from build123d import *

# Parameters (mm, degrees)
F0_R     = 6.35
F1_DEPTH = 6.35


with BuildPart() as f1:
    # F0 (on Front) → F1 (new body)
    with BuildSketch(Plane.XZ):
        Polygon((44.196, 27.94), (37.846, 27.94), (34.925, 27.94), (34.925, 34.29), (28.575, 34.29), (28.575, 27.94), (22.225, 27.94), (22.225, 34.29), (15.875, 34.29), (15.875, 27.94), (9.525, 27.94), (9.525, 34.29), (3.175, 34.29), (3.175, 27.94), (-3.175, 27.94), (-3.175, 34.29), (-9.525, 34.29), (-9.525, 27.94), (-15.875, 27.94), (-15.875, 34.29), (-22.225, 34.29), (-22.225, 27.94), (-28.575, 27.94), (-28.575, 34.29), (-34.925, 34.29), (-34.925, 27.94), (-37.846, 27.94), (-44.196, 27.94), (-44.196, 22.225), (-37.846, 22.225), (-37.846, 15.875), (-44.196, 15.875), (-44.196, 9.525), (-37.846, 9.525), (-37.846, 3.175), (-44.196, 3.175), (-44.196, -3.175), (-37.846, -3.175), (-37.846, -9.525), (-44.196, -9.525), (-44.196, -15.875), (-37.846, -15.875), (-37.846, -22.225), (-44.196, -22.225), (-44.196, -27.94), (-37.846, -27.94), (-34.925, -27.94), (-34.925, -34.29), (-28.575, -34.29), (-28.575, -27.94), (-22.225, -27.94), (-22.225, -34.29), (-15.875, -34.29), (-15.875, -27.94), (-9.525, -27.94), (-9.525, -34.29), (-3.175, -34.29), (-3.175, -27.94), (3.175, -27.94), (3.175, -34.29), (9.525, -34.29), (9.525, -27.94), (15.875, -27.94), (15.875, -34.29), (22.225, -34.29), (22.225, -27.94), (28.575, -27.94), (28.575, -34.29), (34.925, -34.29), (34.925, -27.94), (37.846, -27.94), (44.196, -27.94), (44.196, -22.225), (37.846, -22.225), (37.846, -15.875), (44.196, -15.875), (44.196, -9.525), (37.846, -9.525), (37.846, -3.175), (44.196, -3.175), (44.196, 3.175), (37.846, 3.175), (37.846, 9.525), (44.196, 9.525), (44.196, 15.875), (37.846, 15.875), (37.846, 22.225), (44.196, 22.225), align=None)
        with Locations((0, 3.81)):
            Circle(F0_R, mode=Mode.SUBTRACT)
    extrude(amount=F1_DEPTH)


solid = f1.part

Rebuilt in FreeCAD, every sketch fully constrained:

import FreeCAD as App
import Part
import Sketcher
Q = App.Units.Quantity

doc = App.newDocument("Part")
body = doc.addObject("PartDesign::Body", "Body")

# Sketch on XZ plane
sketch1 = body.newObject("Sketcher::SketchObject", "Sketch")
sketch1.AttachmentSupport = (doc.getObject("XZ_Plane"), [""])
sketch1.MapMode = "FlatFace"
sketch1.addGeometry([
    Part.LineSegment(App.Vector(44, 28, 0), App.Vector(35, 28, 0)),  # 0
    Part.LineSegment(App.Vector(35, 28, 0), App.Vector(35, 34, 0)),  # 1
    Part.LineSegment(App.Vector(35, 34, 0), App.Vector(29, 34, 0)),  # 2
    Part.LineSegment(App.Vector(29, 34, 0), App.Vector(29, 28, 0)),  # 3
    Part.LineSegment(App.Vector(29, 28, 0), App.Vector(22, 28, 0)),  # 4
    Part.LineSegment(App.Vector(22, 28, 0), App.Vector(22, 34, 0)),  # 5
    Part.LineSegment(App.Vector(22, 34, 0), App.Vector(16, 34, 0)),  # 6
    Part.LineSegment(App.Vector(16, 34, 0), App.Vector(16, 28, 0)),  # 7
    Part.LineSegment(App.Vector(16, 28, 0), App.Vector(10, 28, 0)),  # 8
    Part.LineSegment(App.Vector(10, 28, 0), App.Vector(10, 34, 0)),  # 9
    Part.LineSegment(App.Vector(10, 34, 0), App.Vector(3, 34, 0)),  # 10
    Part.LineSegment(App.Vector(3, 34, 0), App.Vector(3, 28, 0)),  # 11
    Part.LineSegment(App.Vector(3, 28, 0), App.Vector(-3, 28, 0)),  # 12
    Part.LineSegment(App.Vector(-3, 28, 0), App.Vector(-3, 34, 0)),  # 13
    Part.LineSegment(App.Vector(-3, 34, 0), App.Vector(-10, 34, 0)),  # 14
    Part.LineSegment(App.Vector(-10, 34, 0), App.Vector(-10, 28, 0)),  # 15
    Part.LineSegment(App.Vector(-10, 28, 0), App.Vector(-16, 28, 0)),  # 16
    Part.LineSegment(App.Vector(-16, 28, 0), App.Vector(-16, 34, 0)),  # 17
    Part.LineSegment(App.Vector(-16, 34, 0), App.Vector(-22, 34, 0)),  # 18
    Part.LineSegment(App.Vector(-22, 34, 0), App.Vector(-22, 28, 0)),  # 19
    Part.LineSegment(App.Vector(-22, 28, 0), App.Vector(-29, 28, 0)),  # 20
    Part.LineSegment(App.Vector(-29, 28, 0), App.Vector(-29, 34, 0)),  # 21
    Part.LineSegment(App.Vector(-29, 34, 0), App.Vector(-35, 34, 0)),  # 22
    Part.LineSegment(App.Vector(-35, 34, 0), App.Vector(-35, 28, 0)),  # 23
    Part.LineSegment(App.Vector(-35, 28, 0), App.Vector(-44, 28, 0)),  # 24
    Part.LineSegment(App.Vector(-44, 28, 0), App.Vector(-44, 22, 0)),  # 25
    Part.LineSegment(App.Vector(-44, 22, 0), App.Vector(-38, 22, 0)),  # 26
    Part.LineSegment(App.Vector(-38, 22, 0), App.Vector(-38, 16, 0)),  # 27
    Part.LineSegment(App.Vector(-38, 16, 0), App.Vector(-44, 16, 0)),  # 28
    Part.LineSegment(App.Vector(-44, 16, 0), App.Vector(-44, 10, 0)),  # 29
    Part.LineSegment(App.Vector(-44, 10, 0), App.Vector(-38, 10, 0)),  # 30
    Part.LineSegment(App.Vector(-38, 10, 0), App.Vector(-38, 3, 0)),  # 31
    Part.LineSegment(App.Vector(-38, 3, 0), App.Vector(-44, 3, 0)),  # 32
    Part.LineSegment(App.Vector(-44, 3, 0), App.Vector(-44, -3, 0)),  # 33
    Part.LineSegment(App.Vector(-44, -3, 0), App.Vector(-38, -3, 0)),  # 34
    Part.LineSegment(App.Vector(-38, -3, 0), App.Vector(-38, -10, 0)),  # 35
    Part.LineSegment(App.Vector(-38, -10, 0), App.Vector(-44, -10, 0)),  # 36
    Part.LineSegment(App.Vector(-44, -10, 0), App.Vector(-44, -16, 0)),  # 37
    Part.LineSegment(App.Vector(-44, -16, 0), App.Vector(-38, -16, 0)),  # 38
    Part.LineSegment(App.Vector(-38, -16, 0), App.Vector(-38, -22, 0)),  # 39
    Part.LineSegment(App.Vector(-38, -22, 0), App.Vector(-44, -22, 0)),  # 40
    Part.LineSegment(App.Vector(-44, -22, 0), App.Vector(-44, -28, 0)),  # 41
    Part.LineSegment(App.Vector(-44, -28, 0), App.Vector(-35, -28, 0)),  # 42
    Part.LineSegment(App.Vector(-35, -28, 0), App.Vector(-35, -34, 0)),  # 43
    Part.LineSegment(App.Vector(-35, -34, 0), App.Vector(-29, -34, 0)),  # 44
    Part.LineSegment(App.Vector(-29, -34, 0), App.Vector(-29, -28, 0)),  # 45
    Part.LineSegment(App.Vector(-29, -28, 0), App.Vector(-22, -28, 0)),  # 46
    Part.LineSegment(App.Vector(-22, -28, 0), App.Vector(-22, -34, 0)),  # 47
    Part.LineSegment(App.Vector(-22, -34, 0), App.Vector(-16, -34, 0)),  # 48
    Part.LineSegment(App.Vector(-16, -34, 0), App.Vector(-16, -28, 0)),  # 49
    Part.LineSegment(App.Vector(-16, -28, 0), App.Vector(-10, -28, 0)),  # 50
    Part.LineSegment(App.Vector(-10, -28, 0), App.Vector(-10, -34, 0)),  # 51
    Part.LineSegment(App.Vector(-10, -34, 0), App.Vector(-3, -34, 0)),  # 52
    Part.LineSegment(App.Vector(-3, -34, 0), App.Vector(-3, -28, 0)),  # 53
    Part.LineSegment(App.Vector(-3, -28, 0), App.Vector(3, -28, 0)),  # 54
    Part.LineSegment(App.Vector(3, -28, 0), App.Vector(3, -34, 0)),  # 55
    Part.LineSegment(App.Vector(3, -34, 0), App.Vector(10, -34, 0)),  # 56
    Part.LineSegment(App.Vector(10, -34, 0), App.Vector(10, -28, 0)),  # 57
    Part.LineSegment(App.Vector(10, -28, 0), App.Vector(16, -28, 0)),  # 58
    Part.LineSegment(App.Vector(16, -28, 0), App.Vector(16, -34, 0)),  # 59
    Part.LineSegment(App.Vector(16, -34, 0), App.Vector(22, -34, 0)),  # 60
    Part.LineSegment(App.Vector(22, -34, 0), App.Vector(22, -28, 0)),  # 61
    Part.LineSegment(App.Vector(22, -28, 0), App.Vector(29, -28, 0)),  # 62
    Part.LineSegment(App.Vector(29, -28, 0), App.Vector(29, -34, 0)),  # 63
    Part.LineSegment(App.Vector(29, -34, 0), App.Vector(35, -34, 0)),  # 64
    Part.LineSegment(App.Vector(35, -34, 0), App.Vector(35, -28, 0)),  # 65
    Part.LineSegment(App.Vector(35, -28, 0), App.Vector(44, -28, 0)),  # 66
    Part.LineSegment(App.Vector(44, -28, 0), App.Vector(44, -22, 0)),  # 67
    Part.LineSegment(App.Vector(44, -22, 0), App.Vector(38, -22, 0)),  # 68
    Part.LineSegment(App.Vector(38, -22, 0), App.Vector(38, -16, 0)),  # 69
    Part.LineSegment(App.Vector(38, -16, 0), App.Vector(44, -16, 0)),  # 70
    Part.LineSegment(App.Vector(44, -16, 0), App.Vector(44, -10, 0)),  # 71
    Part.LineSegment(App.Vector(44, -10, 0), App.Vector(38, -10, 0)),  # 72
    Part.LineSegment(App.Vector(38, -10, 0), App.Vector(38, -3, 0)),  # 73
    Part.LineSegment(App.Vector(38, -3, 0), App.Vector(44, -3, 0)),  # 74
    Part.LineSegment(App.Vector(44, -3, 0), App.Vector(44, 3, 0)),  # 75
    Part.LineSegment(App.Vector(44, 3, 0), App.Vector(38, 3, 0)),  # 76
    Part.LineSegment(App.Vector(38, 3, 0), App.Vector(38, 10, 0)),  # 77
    Part.LineSegment(App.Vector(38, 10, 0), App.Vector(44, 10, 0)),  # 78
    Part.LineSegment(App.Vector(44, 10, 0), App.Vector(44, 16, 0)),  # 79
    Part.LineSegment(App.Vector(44, 16, 0), App.Vector(38, 16, 0)),  # 80
    Part.LineSegment(App.Vector(38, 16, 0), App.Vector(38, 22, 0)),  # 81
    Part.LineSegment(App.Vector(38, 22, 0), App.Vector(44, 22, 0)),  # 82
    Part.LineSegment(App.Vector(44, 22, 0), App.Vector(44, 28, 0)),  # 83
    Part.Circle(App.Vector(0, 4, 0), App.Vector(0, 0, 1), 6),  # 84
], False)
sketch1.addConstraint([
    Sketcher.Constraint("Coincident", 0, 2, 1, 1),
    Sketcher.Constraint("Coincident", 1, 2, 2, 1),
    Sketcher.Constraint("Coincident", 2, 2, 3, 1),
    Sketcher.Constraint("Coincident", 3, 2, 4, 1),
    Sketcher.Constraint("Coincident", 4, 2, 5, 1),
    Sketcher.Constraint("Coincident", 5, 2, 6, 1),
    Sketcher.Constraint("Coincident", 6, 2, 7, 1),
    Sketcher.Constraint("Coincident", 7, 2, 8, 1),
    Sketcher.Constraint("Coincident", 8, 2, 9, 1),
    Sketcher.Constraint("Coincident", 9, 2, 10, 1),
    Sketcher.Constraint("Coincident", 10, 2, 11, 1),
    Sketcher.Constraint("Coincident", 11, 2, 12, 1),
    Sketcher.Constraint("Coincident", 12, 2, 13, 1),
    Sketcher.Constraint("Coincident", 13, 2, 14, 1),
    Sketcher.Constraint("Coincident", 14, 2, 15, 1),
    Sketcher.Constraint("Coincident", 15, 2, 16, 1),
    Sketcher.Constraint("Coincident", 16, 2, 17, 1),
    Sketcher.Constraint("Coincident", 17, 2, 18, 1),
    Sketcher.Constraint("Coincident", 18, 2, 19, 1),
    Sketcher.Constraint("Coincident", 19, 2, 20, 1),
    Sketcher.Constraint("Coincident", 20, 2, 21, 1),
    Sketcher.Constraint("Coincident", 21, 2, 22, 1),
    Sketcher.Constraint("Coincident", 22, 2, 23, 1),
    Sketcher.Constraint("Coincident", 23, 2, 24, 1),
    Sketcher.Constraint("Coincident", 24, 2, 25, 1),
    Sketcher.Constraint("Coincident", 25, 2, 26, 1),
    Sketcher.Constraint("Coincident", 26, 2, 27, 1),
    Sketcher.Constraint("Coincident", 27, 2, 28, 1),
    Sketcher.Constraint("Coincident", 28, 2, 29, 1),
    Sketcher.Constraint("Coincident", 29, 2, 30, 1),
    Sketcher.Constraint("Coincident", 30, 2, 31, 1),
    Sketcher.Constraint("Coincident", 31, 2, 32, 1),
    Sketcher.Constraint("Coincident", 32, 2, 33, 1),
    Sketcher.Constraint("Coincident", 33, 2, 34, 1),
    Sketcher.Constraint("Coincident", 34, 2, 35, 1),
    Sketcher.Constraint("Coincident", 35, 2, 36, 1),
    Sketcher.Constraint("Coincident", 36, 2, 37, 1),
    Sketcher.Constraint("Coincident", 37, 2, 38, 1),
    Sketcher.Constraint("Coincident", 38, 2, 39, 1),
    Sketcher.Constraint("Coincident", 39, 2, 40, 1),
    Sketcher.Constraint("Coincident", 40, 2, 41, 1),
    Sketcher.Constraint("Coincident", 41, 2, 42, 1),
    Sketcher.Constraint("Coincident", 42, 2, 43, 1),
    Sketcher.Constraint("Coincident", 43, 2, 44, 1),
    Sketcher.Constraint("Coincident", 44, 2, 45, 1),
    Sketcher.Constraint("Coincident", 45, 2, 46, 1),
    Sketcher.Constraint("Coincident", 46, 2, 47, 1),
    Sketcher.Constraint("Coincident", 47, 2, 48, 1),
    Sketcher.Constraint("Coincident", 48, 2, 49, 1),
    Sketcher.Constraint("Coincident", 49, 2, 50, 1),
    Sketcher.Constraint("Coincident", 50, 2, 51, 1),
    Sketcher.Constraint("Coincident", 51, 2, 52, 1),
    Sketcher.Constraint("Coincident", 52, 2, 53, 1),
    Sketcher.Constraint("Coincident", 53, 2, 54, 1),
    Sketcher.Constraint("Coincident", 54, 2, 55, 1),
    Sketcher.Constraint("Coincident", 55, 2, 56, 1),
    Sketcher.Constraint("Coincident", 56, 2, 57, 1),
    Sketcher.Constraint("Coincident", 57, 2, 58, 1),
    Sketcher.Constraint("Coincident", 58, 2, 59, 1),
    Sketcher.Constraint("Coincident", 59, 2, 60, 1),
    Sketcher.Constraint("Coincident", 60, 2, 61, 1),
    Sketcher.Constraint("Coincident", 61, 2, 62, 1),
    Sketcher.Constraint("Coincident", 62, 2, 63, 1),
    Sketcher.Constraint("Coincident", 63, 2, 64, 1),
    Sketcher.Constraint("Coincident", 64, 2, 65, 1),
    Sketcher.Constraint("Coincident", 65, 2, 66, 1),
    Sketcher.Constraint("Coincident", 66, 2, 67, 1),
    Sketcher.Constraint("Coincident", 67, 2, 68, 1),
    Sketcher.Constraint("Coincident", 68, 2, 69, 1),
    Sketcher.Constraint("Coincident", 69, 2, 70, 1),
    Sketcher.Constraint("Coincident", 70, 2, 71, 1),
    Sketcher.Constraint("Coincident", 71, 2, 72, 1),
    Sketcher.Constraint("Coincident", 72, 2, 73, 1),
    Sketcher.Constraint("Coincident", 73, 2, 74, 1),
    Sketcher.Constraint("Coincident", 74, 2, 75, 1),
    Sketcher.Constraint("Coincident", 75, 2, 76, 1),
    Sketcher.Constraint("Coincident", 76, 2, 77, 1),
    Sketcher.Constraint("Coincident", 77, 2, 78, 1),
    Sketcher.Constraint("Coincident", 78, 2, 79, 1),
    Sketcher.Constraint("Coincident", 79, 2, 80, 1),
    Sketcher.Constraint("Coincident", 80, 2, 81, 1),
    Sketcher.Constraint("Coincident", 81, 2, 82, 1),
    Sketcher.Constraint("Coincident", 82, 2, 83, 1),
    Sketcher.Constraint("Coincident", 83, 2, 0, 1),
    Sketcher.Constraint("Horizontal", 0),
    Sketcher.Constraint("Vertical", 1),
    Sketcher.Constraint("Horizontal", 2),
    Sketcher.Constraint("Vertical", 3),
    Sketcher.Constraint("Horizontal", 4),
    Sketcher.Constraint("Vertical", 5),
    Sketcher.Constraint("Horizontal", 6),
    Sketcher.Constraint("Vertical", 7),
    Sketcher.Constraint("Horizontal", 8),
    Sketcher.Constraint("Vertical", 9),
    Sketcher.Constraint("Horizontal", 10),
    Sketcher.Constraint("Vertical", 11),
    Sketcher.Constraint("Horizontal", 12),
    Sketcher.Constraint("Vertical", 13),
    Sketcher.Constraint("Horizontal", 14),
    Sketcher.Constraint("Vertical", 15),
    Sketcher.Constraint("Horizontal", 16),
    Sketcher.Constraint("Vertical", 17),
    Sketcher.Constraint("Horizontal", 18),
    Sketcher.Constraint("Vertical", 19),
    Sketcher.Constraint("Horizontal", 20),
    Sketcher.Constraint("Vertical", 21),
    Sketcher.Constraint("Horizontal", 22),
    Sketcher.Constraint("Vertical", 23),
    Sketcher.Constraint("Horizontal", 24),
    Sketcher.Constraint("Vertical", 25),
    Sketcher.Constraint("Horizontal", 26),
    Sketcher.Constraint("Vertical", 27),
    Sketcher.Constraint("Horizontal", 28),
    Sketcher.Constraint("Vertical", 29),
    Sketcher.Constraint("Horizontal", 30),
    Sketcher.Constraint("Vertical", 31),
    Sketcher.Constraint("Horizontal", 32),
    Sketcher.Constraint("Vertical", 33),
    Sketcher.Constraint("Horizontal", 34),
    Sketcher.Constraint("Vertical", 35),
    Sketcher.Constraint("Horizontal", 36),
    Sketcher.Constraint("Vertical", 37),
    Sketcher.Constraint("Horizontal", 38),
    Sketcher.Constraint("Vertical", 39),
    Sketcher.Constraint("Horizontal", 40),
    Sketcher.Constraint("Vertical", 41),
    Sketcher.Constraint("Horizontal", 42),
    Sketcher.Constraint("Vertical", 43),
    Sketcher.Constraint("Horizontal", 44),
    Sketcher.Constraint("Vertical", 45),
    Sketcher.Constraint("Horizontal", 46),
    Sketcher.Constraint("Vertical", 47),
    Sketcher.Constraint("Horizontal", 48),
    Sketcher.Constraint("Vertical", 49),
    Sketcher.Constraint("Horizontal", 50),
    Sketcher.Constraint("Vertical", 51),
    Sketcher.Constraint("Horizontal", 52),
    Sketcher.Constraint("Vertical", 53),
    Sketcher.Constraint("Horizontal", 54),
    Sketcher.Constraint("Vertical", 55),
    Sketcher.Constraint("Horizontal", 56),
    Sketcher.Constraint("Vertical", 57),
    Sketcher.Constraint("Horizontal", 58),
    Sketcher.Constraint("Vertical", 59),
    Sketcher.Constraint("Horizontal", 60),
    Sketcher.Constraint("Vertical", 61),
    Sketcher.Constraint("Horizontal", 62),
    Sketcher.Constraint("Vertical", 63),
    Sketcher.Constraint("Horizontal", 64),
    Sketcher.Constraint("Vertical", 65),
    Sketcher.Constraint("Horizontal", 66),
    Sketcher.Constraint("Vertical", 67),
    Sketcher.Constraint("Horizontal", 68),
    Sketcher.Constraint("Vertical", 69),
    Sketcher.Constraint("Horizontal", 70),
    Sketcher.Constraint("Vertical", 71),
    Sketcher.Constraint("Horizontal", 72),
    Sketcher.Constraint("Vertical", 73),
    Sketcher.Constraint("Horizontal", 74),
    Sketcher.Constraint("Vertical", 75),
    Sketcher.Constraint("Horizontal", 76),
    Sketcher.Constraint("Vertical", 77),
    Sketcher.Constraint("Horizontal", 78),
    Sketcher.Constraint("Vertical", 79),
    Sketcher.Constraint("Horizontal", 80),
    Sketcher.Constraint("Vertical", 81),
    Sketcher.Constraint("Horizontal", 82),
    Sketcher.Constraint("Vertical", 83),
    Sketcher.Constraint("Symmetric", 0, 2, 42, 2, -1, 1),
    Sketcher.Constraint("Symmetric", 2, 2, 44, 2, -1, 1),
    Sketcher.Constraint("Symmetric", 4, 2, 46, 2, -1, 1),
    Sketcher.Constraint("Symmetric", 6, 2, 48, 2, -1, 1),
    Sketcher.Constraint("Symmetric", 8, 2, 50, 2, -1, 1),
    Sketcher.Constraint("Symmetric", 10, 2, 52, 2, -1, 1),
    Sketcher.Constraint("Symmetric", 12, 2, 54, 2, -1, 1),
    Sketcher.Constraint("Symmetric", 14, 2, 56, 2, -1, 1),
    Sketcher.Constraint("Symmetric", 16, 2, 58, 2, -1, 1),
    Sketcher.Constraint("Symmetric", 18, 2, 60, 2, -1, 1),
    Sketcher.Constraint("Symmetric", 20, 2, 62, 2, -1, 1),
    Sketcher.Constraint("Symmetric", 22, 2, 64, 2, -1, 1),
    Sketcher.Constraint("Symmetric", 24, 2, 66, 2, -1, 1),
    Sketcher.Constraint("Symmetric", 26, 2, 68, 2, -1, 1),
    Sketcher.Constraint("Symmetric", 28, 2, 70, 2, -1, 1),
    Sketcher.Constraint("Symmetric", 30, 2, 72, 2, -1, 1),
    Sketcher.Constraint("Symmetric", 32, 2, 74, 2, -1, 1),
    Sketcher.Constraint("Symmetric", 34, 2, 76, 2, -1, 1),
    Sketcher.Constraint("Symmetric", 36, 2, 78, 2, -1, 1),
    Sketcher.Constraint("Symmetric", 38, 2, 80, 2, -1, 1),
    Sketcher.Constraint("Symmetric", 40, 2, 82, 2, -1, 1),
    Sketcher.Constraint("Symmetric", 10, 2, 13, 2, -2),
    Sketcher.Constraint("Symmetric", 8, 2, 15, 2, -2),
    Sketcher.Constraint("Symmetric", 6, 2, 17, 2, -2),
    Sketcher.Constraint("Symmetric", 4, 2, 19, 2, -2),
    Sketcher.Constraint("Symmetric", 2, 2, 21, 2, -2),
    Sketcher.Constraint("Symmetric", 0, 2, 23, 2, -2),
    Sketcher.Constraint("Symmetric", 40, 2, 67, 2, -2),
    Sketcher.Constraint("Symmetric", 38, 2, 69, 2, -2),
    Sketcher.Constraint("Symmetric", 36, 2, 71, 2, -2),
    Sketcher.Constraint("Symmetric", 34, 2, 73, 2, -2),
    Sketcher.Constraint("PointOnObject", 84, 3, -2),
    Sketcher.Constraint("Horizontal", 0, 2, 3, 2),
    Sketcher.Constraint("Horizontal", 2, 2, 5, 2),
    Sketcher.Constraint("Horizontal", 4, 2, 7, 2),
    Sketcher.Constraint("Horizontal", 6, 2, 9, 2),
    Sketcher.Constraint("Horizontal", 8, 2, 11, 2),
    Sketcher.Constraint("Vertical", 25, 2, 28, 2),
    Sketcher.Constraint("Vertical", 27, 2, 30, 2),
    Sketcher.Constraint("Vertical", 29, 2, 32, 2),
    Sketcher.Constraint("Equal", 2, 4),
    Sketcher.Constraint("Equal", 4, 6),
    Sketcher.Constraint("Equal", 6, 8),
    Sketcher.Constraint("Equal", 8, 10),
    Sketcher.Constraint("Equal", 10, 12),
    Sketcher.Constraint("Equal", 22, 26),
    Sketcher.Constraint("Equal", 82, 1),
    Sketcher.Constraint("Equal", 23, 27),
    Sketcher.Constraint("Equal", 27, 29),
    Sketcher.Constraint("Equal", 29, 31),
    Sketcher.Constraint("Equal", 31, 33),
    Sketcher.Constraint("Diameter", 84, Q("0.5 in")),
    Sketcher.Constraint("DistanceX", 2, 2, 2, 1, Q("0.25 in")),
    Sketcher.Constraint("DistanceY", -1, 1, 0, 2, Q("1.1 in")),
    Sketcher.Constraint("DistanceX", 0, 2, 0, 1, Q("0.365 in")),
    Sketcher.Constraint("DistanceY", -1, 1, 84, 3, Q("0.15 in")),
])
pad1 = body.newObject("PartDesign::Pad", "Pad")
pad1.Profile = sketch1
pad1.Length = Q("0.25 in")

doc.recompute()
